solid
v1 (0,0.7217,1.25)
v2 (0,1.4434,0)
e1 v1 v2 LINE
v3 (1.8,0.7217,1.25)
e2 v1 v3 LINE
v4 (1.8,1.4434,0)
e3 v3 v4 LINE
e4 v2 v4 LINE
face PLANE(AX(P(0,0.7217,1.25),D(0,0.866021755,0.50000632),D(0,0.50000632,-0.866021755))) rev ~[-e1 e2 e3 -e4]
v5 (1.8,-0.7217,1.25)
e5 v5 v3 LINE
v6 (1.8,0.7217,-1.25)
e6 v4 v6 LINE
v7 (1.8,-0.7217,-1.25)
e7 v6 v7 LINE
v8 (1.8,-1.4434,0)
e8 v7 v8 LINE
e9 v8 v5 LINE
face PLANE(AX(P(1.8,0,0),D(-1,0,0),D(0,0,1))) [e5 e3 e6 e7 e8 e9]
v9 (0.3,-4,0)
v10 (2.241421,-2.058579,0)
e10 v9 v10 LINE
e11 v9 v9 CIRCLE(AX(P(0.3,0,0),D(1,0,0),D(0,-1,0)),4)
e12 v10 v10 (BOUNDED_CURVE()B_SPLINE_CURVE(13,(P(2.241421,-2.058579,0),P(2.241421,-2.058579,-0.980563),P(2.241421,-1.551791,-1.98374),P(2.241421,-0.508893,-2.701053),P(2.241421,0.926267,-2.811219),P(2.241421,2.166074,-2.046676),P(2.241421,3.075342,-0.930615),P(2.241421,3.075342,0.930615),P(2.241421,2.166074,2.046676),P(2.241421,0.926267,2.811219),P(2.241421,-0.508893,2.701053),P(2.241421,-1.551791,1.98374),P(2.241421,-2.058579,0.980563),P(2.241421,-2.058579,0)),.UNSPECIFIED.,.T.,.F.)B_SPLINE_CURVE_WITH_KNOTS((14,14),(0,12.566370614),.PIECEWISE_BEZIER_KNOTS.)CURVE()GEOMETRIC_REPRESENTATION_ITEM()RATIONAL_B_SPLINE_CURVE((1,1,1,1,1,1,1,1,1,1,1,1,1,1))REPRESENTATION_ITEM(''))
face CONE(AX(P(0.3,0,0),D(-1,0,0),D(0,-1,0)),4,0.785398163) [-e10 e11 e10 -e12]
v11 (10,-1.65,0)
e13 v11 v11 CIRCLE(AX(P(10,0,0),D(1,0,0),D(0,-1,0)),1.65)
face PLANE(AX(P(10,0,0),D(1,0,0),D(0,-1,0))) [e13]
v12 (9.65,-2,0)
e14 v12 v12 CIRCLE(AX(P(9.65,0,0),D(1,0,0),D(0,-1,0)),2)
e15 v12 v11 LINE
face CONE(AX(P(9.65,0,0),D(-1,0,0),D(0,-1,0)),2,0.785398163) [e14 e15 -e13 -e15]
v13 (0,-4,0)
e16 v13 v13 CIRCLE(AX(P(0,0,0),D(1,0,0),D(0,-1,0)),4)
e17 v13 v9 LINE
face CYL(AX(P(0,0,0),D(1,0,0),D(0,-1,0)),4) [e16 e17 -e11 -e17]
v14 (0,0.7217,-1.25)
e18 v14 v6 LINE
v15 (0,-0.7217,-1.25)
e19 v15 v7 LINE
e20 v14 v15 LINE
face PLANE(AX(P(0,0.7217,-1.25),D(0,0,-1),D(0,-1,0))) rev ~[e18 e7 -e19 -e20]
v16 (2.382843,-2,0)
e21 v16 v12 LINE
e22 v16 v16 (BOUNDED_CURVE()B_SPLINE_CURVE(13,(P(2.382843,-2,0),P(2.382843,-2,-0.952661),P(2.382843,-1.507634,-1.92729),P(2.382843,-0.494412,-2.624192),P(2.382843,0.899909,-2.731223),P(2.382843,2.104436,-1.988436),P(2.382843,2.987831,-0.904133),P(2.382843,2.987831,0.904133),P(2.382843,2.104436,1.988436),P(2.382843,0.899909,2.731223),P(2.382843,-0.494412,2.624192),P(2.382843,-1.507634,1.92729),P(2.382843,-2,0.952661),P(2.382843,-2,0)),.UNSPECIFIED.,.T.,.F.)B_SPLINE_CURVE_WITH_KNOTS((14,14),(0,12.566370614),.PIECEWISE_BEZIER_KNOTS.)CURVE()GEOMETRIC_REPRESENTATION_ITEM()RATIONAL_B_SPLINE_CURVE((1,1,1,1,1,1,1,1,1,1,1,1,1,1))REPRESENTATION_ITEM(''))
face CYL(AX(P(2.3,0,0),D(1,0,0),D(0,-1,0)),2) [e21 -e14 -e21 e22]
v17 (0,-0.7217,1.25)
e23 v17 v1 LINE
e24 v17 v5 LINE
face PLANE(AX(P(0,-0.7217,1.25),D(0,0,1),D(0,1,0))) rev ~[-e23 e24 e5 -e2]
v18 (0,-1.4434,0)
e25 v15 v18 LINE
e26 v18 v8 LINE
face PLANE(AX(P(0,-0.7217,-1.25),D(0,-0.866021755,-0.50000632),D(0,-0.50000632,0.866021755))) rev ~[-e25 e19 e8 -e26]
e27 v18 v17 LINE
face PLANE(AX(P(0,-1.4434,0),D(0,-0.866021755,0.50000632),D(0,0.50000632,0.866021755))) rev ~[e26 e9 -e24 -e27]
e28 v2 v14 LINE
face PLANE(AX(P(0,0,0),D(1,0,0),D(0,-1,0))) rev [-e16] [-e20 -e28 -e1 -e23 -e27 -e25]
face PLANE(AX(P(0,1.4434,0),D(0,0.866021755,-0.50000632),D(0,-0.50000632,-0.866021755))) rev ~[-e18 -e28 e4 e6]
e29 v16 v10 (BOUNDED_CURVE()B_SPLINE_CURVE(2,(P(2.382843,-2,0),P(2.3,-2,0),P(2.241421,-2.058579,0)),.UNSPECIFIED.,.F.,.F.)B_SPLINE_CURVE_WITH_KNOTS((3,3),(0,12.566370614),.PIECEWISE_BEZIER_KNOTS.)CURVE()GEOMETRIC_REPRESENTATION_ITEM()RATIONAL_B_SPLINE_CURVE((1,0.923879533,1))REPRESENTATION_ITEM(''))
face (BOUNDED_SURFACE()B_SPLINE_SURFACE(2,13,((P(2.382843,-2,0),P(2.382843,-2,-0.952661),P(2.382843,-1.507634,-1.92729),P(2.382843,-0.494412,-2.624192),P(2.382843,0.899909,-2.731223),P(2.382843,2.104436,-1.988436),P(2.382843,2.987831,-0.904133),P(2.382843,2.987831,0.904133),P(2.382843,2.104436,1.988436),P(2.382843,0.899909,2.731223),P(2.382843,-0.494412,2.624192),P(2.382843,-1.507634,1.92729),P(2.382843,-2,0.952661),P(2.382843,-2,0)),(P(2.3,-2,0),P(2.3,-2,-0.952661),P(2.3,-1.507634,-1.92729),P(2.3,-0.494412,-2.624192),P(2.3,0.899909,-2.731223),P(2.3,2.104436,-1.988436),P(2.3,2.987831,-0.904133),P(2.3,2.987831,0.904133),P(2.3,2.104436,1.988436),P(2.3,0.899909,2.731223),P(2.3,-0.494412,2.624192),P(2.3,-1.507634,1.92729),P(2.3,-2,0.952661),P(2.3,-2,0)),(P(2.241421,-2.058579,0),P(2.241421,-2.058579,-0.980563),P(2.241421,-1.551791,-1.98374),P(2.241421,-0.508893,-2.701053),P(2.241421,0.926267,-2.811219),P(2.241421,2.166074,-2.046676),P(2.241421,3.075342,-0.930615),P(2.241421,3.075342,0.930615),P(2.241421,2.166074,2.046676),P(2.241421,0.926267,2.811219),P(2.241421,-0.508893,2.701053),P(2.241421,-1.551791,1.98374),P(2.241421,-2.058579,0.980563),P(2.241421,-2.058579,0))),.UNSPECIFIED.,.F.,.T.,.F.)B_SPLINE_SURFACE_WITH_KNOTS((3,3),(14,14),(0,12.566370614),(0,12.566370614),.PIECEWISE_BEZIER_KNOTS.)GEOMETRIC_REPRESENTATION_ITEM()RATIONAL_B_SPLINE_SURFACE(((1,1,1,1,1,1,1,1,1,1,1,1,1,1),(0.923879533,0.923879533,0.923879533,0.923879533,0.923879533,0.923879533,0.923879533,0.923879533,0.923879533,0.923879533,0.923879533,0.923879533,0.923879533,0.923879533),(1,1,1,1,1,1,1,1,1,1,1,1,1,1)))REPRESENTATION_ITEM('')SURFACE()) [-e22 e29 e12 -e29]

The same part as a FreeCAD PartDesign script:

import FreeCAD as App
import Part
import Sketcher
from FreeCAD import Vector
Q = App.Units.Quantity


def edges_at(feature, points):
    """Names of the edges that pass closest to the given points."""
    edges = feature.Shape.Edges
    near = lambda p: min(range(len(edges)), key=lambda i: edges[i].distToShape(Part.Vertex(*p))[0])
    return sorted({f"Edge{near(p) + 1}" for p in points})


def add_polygon(sketch, points):
    """Adds a closed chain of lines whose ends are joined by coincident constraints."""
    first, n = sketch.GeometryCount, len(points)
    for a, b in zip(points, points[1:] + points[:1]):
        sketch.addGeometry(Part.LineSegment(App.Vector(*a, 0), App.Vector(*b, 0)), False)
    for i in range(n):
        sketch.addConstraint(Sketcher.Constraint("Coincident", first + i, 2, first + (i + 1) % n, 1))

doc = App.newDocument("Part")
body = doc.addObject("PartDesign::Body", "Body")

# Sketch on XY plane
sketch1 = doc.addObject("Sketcher::SketchObject", "Sketch")
body.addObject(sketch1)
sketch1.AttachmentSupport = (doc.XY_Plane, [""])
sketch1.MapMode = "FlatFace"
add_polygon(sketch1, [(2.3, -2), (10, -2), (10, 0), (0, 0), (0, -4), (0.3, -4)])  # lines 0-5
sketch1.addConstraint(Sketcher.Constraint("Horizontal", 0))
sketch1.addConstraint(Sketcher.Constraint("Vertical", 1))
sketch1.addConstraint(Sketcher.Constraint("Horizontal", 2))
sketch1.addConstraint(Sketcher.Constraint("Vertical", 3))
sketch1.addConstraint(Sketcher.Constraint("Horizontal", 4))
sketch1.addConstraint(Sketcher.Constraint("Coincident", 2, 2, -1, 1))
sketch1.addConstraint(Sketcher.Constraint("DistanceX", 2, 2, 2, 1, 10.0))
sketch1.addConstraint(Sketcher.Constraint("DistanceY", 1, 1, 1, 2, 2.0))
sketch1.addConstraint(Sketcher.Constraint("DistanceY", 3, 2, 3, 1, 4.0))
sketch1.addConstraint(Sketcher.Constraint("Angle", 5, Q("45 deg")))
sketch1.addConstraint(Sketcher.Constraint("DistanceX", 4, 1, 4, 2, 0.3))
revolution = doc.addObject("PartDesign::Revolution", "Revolution")
body.addObject(revolution)
revolution.Profile = sketch1
revolution.ReferenceAxis = (sketch1, ["H_Axis"])
revolution.Angle = 360

# Sketch on YZ plane
sketch2 = doc.addObject("Sketcher::SketchObject", "Sketch001")
body.addObject(sketch2)
sketch2.AttachmentSupport = (doc.YZ_Plane, [""])
sketch2.MapMode = "FlatFace"
add_polygon(sketch2, [(1.4434, 0), (0.7217, -1.25), (-0.7217, -1.25), (-1.4434, 0), (-0.7217, 1.25), (0.7217, 1.25)])  # lines 0-5
sketch2.addConstraint(Sketcher.Constraint("Horizontal", 1))
sketch2.addConstraint(Sketcher.Constraint("Horizontal", 4))
sketch2.addConstraint(Sketcher.Constraint("Symmetric", 0, 2, 3, 2, -1, 1))
sketch2.addConstraint(Sketcher.Constraint("Symmetric", 2, 2, 5, 2, -1, 1))
sketch2.addConstraint(Sketcher.Constraint("PointOnObject", 2, 2, -1))
sketch2.addConstraint(Sketcher.Constraint("Parallel", 2, 5))
sketch2.addConstraint(Sketcher.Constraint("Vertical", 1, 2, 3, 2))
sketch2.addConstraint(Sketcher.Constraint("Angle", 0, Q("-120.0004 deg")))
sketch2.addConstraint(Sketcher.Constraint("DistanceY", 1, 2, 3, 2, 2.5))
sketch2.addConstraint(Sketcher.Constraint("DistanceX", 1, 2, 1, 1, 1.4434))
pocket1 = doc.addObject("PartDesign::Pocket", "Pocket")
body.addObject(pocket1)
pocket1.Profile = sketch2
pocket1.Length = 1.8
pocket1.Reversed = True
doc.recompute()

fillet = doc.addObject("PartDesign::Fillet", "Fillet")
body.addObject(fillet)
fillet.Base = (pocket1, edges_at(pocket1, [(2.3, 2, 0)]))
fillet.Radius = 0.2
doc.recompute()

chamfer = doc.addObject("PartDesign::Chamfer", "Chamfer")
body.addObject(chamfer)
chamfer.Base = (fillet, edges_at(fillet, [(10, 2, 0)]))
chamfer.Size = 0.35

doc.recompute()
